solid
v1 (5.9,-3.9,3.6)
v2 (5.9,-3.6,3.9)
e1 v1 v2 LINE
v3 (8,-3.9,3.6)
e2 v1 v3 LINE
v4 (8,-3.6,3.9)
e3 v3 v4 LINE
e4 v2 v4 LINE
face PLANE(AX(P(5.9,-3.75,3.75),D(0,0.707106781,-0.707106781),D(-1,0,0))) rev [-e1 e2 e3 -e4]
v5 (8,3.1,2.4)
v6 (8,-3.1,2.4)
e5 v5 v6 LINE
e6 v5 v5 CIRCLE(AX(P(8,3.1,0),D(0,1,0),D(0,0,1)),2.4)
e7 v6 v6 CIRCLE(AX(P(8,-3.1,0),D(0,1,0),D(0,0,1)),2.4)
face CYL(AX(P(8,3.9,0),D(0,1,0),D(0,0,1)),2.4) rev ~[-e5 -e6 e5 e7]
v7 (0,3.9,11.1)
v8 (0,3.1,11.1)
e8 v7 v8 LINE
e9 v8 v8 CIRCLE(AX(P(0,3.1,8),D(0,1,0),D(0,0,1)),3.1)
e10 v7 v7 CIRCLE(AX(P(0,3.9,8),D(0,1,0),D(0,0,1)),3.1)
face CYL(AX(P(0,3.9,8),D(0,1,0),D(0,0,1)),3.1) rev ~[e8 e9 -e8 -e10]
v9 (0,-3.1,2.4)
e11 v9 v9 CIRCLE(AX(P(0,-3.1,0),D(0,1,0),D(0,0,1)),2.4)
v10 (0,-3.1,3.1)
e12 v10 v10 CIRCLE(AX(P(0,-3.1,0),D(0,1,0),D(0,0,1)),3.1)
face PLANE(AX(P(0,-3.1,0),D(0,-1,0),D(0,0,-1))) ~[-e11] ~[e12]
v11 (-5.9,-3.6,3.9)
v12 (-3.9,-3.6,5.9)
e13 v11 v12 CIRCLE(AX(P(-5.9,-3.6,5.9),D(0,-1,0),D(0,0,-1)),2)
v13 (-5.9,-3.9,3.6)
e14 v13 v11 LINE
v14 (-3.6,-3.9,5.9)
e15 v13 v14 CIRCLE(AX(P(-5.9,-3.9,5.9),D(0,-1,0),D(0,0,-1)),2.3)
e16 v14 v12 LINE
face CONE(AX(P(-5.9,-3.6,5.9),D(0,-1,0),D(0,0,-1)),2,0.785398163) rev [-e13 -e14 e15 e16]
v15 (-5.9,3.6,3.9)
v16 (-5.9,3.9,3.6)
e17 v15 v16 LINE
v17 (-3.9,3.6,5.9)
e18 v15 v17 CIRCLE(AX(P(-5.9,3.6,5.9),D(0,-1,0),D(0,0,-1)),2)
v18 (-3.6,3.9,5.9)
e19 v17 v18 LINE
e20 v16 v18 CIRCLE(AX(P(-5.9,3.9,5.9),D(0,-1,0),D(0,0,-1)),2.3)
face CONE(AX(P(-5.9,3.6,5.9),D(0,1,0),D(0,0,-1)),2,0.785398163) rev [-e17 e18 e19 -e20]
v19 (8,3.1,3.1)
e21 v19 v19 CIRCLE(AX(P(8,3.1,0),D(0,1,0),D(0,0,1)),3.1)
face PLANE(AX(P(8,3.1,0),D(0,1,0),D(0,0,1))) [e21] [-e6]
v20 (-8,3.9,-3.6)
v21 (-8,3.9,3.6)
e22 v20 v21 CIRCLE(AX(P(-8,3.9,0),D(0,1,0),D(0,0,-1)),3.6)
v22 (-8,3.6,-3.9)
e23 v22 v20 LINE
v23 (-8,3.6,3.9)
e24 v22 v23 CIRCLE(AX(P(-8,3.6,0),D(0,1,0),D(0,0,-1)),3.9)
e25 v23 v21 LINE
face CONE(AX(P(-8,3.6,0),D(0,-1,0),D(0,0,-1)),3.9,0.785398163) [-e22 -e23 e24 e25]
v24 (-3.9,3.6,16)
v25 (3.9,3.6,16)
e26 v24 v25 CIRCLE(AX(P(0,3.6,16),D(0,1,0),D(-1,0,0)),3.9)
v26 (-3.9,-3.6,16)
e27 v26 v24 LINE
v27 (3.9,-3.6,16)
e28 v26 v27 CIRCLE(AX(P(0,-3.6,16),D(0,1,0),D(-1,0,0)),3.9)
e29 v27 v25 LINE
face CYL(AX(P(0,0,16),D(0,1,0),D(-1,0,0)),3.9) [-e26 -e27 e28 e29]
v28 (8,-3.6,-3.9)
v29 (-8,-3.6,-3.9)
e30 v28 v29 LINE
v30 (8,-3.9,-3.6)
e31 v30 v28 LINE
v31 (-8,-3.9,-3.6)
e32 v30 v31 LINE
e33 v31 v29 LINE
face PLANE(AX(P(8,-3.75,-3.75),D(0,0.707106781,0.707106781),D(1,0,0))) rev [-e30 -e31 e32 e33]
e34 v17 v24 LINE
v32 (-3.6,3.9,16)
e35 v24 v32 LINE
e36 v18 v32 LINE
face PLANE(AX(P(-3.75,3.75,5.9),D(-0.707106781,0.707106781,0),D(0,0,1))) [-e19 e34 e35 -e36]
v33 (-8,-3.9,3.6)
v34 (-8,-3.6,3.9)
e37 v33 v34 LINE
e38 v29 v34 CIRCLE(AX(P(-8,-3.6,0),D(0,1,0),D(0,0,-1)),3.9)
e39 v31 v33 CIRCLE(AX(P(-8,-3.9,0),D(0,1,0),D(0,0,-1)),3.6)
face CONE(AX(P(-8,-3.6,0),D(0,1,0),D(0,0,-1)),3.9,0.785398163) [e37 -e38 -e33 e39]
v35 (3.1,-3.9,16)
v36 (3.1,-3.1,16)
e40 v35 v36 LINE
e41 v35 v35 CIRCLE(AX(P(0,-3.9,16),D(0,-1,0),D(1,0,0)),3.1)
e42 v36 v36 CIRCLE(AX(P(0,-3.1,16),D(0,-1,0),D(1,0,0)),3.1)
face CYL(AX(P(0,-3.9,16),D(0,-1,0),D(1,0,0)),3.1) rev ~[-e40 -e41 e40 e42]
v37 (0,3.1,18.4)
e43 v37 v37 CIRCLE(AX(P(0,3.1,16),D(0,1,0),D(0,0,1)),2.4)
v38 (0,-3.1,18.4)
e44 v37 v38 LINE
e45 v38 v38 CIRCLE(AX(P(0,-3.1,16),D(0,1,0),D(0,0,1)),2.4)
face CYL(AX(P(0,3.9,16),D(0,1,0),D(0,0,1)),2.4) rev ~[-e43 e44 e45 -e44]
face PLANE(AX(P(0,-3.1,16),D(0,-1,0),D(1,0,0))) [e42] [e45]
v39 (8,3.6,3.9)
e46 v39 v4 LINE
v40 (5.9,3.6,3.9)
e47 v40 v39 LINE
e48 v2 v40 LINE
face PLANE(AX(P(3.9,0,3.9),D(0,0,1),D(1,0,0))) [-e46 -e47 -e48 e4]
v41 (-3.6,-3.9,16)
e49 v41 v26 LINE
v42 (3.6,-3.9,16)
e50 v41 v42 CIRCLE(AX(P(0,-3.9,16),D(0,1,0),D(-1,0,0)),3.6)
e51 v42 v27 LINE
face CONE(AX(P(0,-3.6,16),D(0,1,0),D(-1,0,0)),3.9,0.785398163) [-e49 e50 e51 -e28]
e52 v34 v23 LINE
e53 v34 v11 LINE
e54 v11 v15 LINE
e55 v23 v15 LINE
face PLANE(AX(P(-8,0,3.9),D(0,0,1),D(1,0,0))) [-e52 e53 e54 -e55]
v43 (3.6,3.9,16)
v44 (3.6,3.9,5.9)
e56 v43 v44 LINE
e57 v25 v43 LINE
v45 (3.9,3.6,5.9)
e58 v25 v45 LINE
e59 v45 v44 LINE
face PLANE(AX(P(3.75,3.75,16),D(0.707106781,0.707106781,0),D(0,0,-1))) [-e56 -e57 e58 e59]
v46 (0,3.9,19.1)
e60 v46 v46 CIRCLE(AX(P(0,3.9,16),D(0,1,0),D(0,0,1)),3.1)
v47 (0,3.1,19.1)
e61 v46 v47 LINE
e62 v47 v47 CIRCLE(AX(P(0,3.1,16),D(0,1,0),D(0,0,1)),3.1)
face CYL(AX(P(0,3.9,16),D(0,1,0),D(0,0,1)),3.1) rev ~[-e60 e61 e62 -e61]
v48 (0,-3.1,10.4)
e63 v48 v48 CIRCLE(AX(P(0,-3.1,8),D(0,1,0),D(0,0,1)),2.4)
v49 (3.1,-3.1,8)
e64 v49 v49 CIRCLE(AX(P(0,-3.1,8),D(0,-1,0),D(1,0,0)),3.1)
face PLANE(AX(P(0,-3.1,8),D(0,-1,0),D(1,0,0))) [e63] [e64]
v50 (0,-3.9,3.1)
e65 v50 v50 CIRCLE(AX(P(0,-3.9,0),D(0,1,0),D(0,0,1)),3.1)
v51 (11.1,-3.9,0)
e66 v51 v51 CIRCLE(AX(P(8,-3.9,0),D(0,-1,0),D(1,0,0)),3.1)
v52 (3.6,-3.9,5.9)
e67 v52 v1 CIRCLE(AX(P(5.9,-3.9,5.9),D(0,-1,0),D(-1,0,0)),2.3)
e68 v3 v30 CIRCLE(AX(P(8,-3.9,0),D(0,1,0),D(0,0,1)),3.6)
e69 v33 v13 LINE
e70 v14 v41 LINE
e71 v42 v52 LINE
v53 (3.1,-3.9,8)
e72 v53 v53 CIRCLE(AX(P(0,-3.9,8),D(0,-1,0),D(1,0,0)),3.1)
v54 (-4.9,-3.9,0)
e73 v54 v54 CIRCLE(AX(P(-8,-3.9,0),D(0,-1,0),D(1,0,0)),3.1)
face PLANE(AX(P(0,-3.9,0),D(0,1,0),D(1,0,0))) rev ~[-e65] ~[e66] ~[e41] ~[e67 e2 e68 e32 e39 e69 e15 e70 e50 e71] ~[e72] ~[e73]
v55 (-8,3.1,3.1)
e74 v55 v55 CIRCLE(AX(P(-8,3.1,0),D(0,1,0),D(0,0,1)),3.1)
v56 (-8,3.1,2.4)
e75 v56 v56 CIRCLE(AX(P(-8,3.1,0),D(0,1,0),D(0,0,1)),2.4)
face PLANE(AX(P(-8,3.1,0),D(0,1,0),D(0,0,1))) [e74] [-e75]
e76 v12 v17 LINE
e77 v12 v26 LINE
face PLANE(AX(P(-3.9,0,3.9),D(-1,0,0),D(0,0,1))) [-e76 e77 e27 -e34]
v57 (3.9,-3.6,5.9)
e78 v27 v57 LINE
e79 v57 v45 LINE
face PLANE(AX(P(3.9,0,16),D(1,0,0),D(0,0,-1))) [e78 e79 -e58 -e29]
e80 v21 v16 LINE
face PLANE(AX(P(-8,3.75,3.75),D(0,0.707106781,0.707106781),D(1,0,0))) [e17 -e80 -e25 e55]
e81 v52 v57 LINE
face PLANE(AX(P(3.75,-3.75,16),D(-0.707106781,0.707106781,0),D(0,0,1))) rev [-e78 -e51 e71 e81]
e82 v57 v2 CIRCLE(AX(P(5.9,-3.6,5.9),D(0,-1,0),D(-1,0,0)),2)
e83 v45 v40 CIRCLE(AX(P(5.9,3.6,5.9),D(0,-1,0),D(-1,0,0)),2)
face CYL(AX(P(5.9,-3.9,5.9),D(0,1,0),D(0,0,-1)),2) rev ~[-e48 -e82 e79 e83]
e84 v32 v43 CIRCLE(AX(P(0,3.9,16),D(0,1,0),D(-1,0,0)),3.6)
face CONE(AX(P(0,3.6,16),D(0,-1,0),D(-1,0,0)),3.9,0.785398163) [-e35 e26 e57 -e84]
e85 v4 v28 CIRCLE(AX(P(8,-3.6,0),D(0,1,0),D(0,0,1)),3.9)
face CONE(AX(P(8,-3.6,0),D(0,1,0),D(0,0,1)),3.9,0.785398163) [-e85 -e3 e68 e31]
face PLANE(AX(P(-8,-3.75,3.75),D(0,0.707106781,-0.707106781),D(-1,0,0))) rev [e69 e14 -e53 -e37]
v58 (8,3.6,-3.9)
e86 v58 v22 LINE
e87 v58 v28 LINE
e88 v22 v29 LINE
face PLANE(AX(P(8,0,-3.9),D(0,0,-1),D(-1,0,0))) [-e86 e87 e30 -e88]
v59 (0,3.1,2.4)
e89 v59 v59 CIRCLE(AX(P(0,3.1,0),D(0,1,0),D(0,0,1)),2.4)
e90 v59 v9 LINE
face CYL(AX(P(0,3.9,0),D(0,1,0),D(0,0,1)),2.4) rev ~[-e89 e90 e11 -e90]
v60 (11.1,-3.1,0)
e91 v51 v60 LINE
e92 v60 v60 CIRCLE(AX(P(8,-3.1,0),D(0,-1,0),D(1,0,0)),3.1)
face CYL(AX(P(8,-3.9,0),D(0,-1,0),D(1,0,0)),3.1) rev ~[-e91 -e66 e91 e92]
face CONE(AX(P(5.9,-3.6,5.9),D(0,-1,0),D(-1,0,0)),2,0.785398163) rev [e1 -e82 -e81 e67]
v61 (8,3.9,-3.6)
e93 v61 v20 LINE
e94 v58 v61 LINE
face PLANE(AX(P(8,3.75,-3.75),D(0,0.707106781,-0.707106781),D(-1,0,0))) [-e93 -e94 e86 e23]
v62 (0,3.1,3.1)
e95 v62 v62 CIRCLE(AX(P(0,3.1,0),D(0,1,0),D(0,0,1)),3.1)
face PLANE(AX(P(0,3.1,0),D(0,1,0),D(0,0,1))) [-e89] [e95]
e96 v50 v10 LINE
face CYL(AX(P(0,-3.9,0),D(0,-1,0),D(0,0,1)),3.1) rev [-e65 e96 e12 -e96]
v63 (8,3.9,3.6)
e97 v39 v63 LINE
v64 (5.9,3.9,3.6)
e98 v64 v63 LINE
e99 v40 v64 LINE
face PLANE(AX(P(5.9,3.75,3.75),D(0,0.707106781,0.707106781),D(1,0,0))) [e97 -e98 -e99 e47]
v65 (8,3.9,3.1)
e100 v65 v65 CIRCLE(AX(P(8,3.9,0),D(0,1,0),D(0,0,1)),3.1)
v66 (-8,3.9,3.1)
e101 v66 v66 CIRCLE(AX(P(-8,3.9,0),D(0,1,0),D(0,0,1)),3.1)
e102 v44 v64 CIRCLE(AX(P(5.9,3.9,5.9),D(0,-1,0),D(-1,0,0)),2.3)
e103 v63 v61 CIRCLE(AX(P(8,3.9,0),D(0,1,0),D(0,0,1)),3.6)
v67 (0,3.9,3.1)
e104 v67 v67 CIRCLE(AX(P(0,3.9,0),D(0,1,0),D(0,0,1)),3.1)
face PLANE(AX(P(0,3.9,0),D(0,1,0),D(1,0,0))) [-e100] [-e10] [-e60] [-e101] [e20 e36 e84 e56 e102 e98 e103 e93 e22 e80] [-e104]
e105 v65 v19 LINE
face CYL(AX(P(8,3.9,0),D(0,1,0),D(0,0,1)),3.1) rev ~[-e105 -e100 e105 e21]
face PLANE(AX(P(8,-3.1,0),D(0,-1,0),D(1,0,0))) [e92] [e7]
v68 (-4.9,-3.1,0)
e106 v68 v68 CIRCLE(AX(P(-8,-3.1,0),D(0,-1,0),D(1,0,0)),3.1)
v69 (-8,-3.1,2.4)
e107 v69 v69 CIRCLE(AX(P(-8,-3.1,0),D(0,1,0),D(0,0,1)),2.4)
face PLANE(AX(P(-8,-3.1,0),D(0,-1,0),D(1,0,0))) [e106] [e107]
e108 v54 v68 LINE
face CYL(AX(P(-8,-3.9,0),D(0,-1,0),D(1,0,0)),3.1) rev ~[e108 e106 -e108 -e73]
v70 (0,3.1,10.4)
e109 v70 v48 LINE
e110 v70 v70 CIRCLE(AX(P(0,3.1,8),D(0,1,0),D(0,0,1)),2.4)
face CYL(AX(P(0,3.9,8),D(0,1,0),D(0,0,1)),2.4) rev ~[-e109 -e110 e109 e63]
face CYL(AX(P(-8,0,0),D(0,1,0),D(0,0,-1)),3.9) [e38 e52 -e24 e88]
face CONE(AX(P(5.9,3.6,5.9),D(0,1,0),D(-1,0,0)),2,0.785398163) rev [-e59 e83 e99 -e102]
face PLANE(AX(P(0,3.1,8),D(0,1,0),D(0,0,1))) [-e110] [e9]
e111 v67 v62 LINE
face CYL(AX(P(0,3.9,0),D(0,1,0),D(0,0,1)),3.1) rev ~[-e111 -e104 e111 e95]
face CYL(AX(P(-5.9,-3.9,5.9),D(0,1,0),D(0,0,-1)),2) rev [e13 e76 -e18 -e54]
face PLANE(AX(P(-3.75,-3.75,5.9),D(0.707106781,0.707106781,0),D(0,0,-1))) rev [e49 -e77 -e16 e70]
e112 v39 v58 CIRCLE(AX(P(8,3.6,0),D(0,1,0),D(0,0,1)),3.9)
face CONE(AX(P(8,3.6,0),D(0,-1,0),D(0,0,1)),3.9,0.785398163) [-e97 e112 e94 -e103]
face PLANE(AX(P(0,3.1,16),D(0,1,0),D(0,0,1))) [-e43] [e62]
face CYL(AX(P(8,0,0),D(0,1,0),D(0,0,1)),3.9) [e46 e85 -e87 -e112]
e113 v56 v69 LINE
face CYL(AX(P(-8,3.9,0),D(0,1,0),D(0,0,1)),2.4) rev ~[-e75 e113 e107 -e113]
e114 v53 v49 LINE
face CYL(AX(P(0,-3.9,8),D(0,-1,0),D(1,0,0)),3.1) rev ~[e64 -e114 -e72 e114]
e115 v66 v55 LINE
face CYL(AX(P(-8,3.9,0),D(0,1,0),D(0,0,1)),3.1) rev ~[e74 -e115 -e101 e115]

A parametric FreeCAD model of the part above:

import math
import FreeCAD as App
import Part
import Sketcher
from FreeCAD import Vector
Q = App.Units.Quantity


def edges_at(feature, points):
    """Names of the edges that pass closest to the given points."""
    edges = feature.Shape.Edges
    near = lambda p: min(range(len(edges)), key=lambda i: edges[i].distToShape(Part.Vertex(*p))[0])
    return sorted({f"Edge{near(p) + 1}" for p in points})

doc = App.newDocument("Part")
body = doc.addObject("PartDesign::Body", "Body")

# Sketch on XZ plane
sketch1 = doc.addObject("Sketcher::SketchObject", "Sketch")
body.addObject(sketch1)
sketch1.AttachmentSupport = (doc.XZ_Plane, [""])
sketch1.MapMode = "FlatFace"
sketch1.addGeometry([
    Part.ArcOfCircle(Part.Circle(Vector(-8, 0, 0), Vector(0, 0, 1), 3.9), math.radians(90), math.radians(270)),  # 0
    Part.LineSegment(Vector(-8, 3.9, 0), Vector(-3.9, 3.9, 0)),  # 1
    Part.LineSegment(Vector(-3.9, 3.9, 0), Vector(-3.9, 16, 0)),  # 2
    Part.ArcOfCircle(Part.Circle(Vector(0, 16, 0), Vector(0, 0, 1), 3.9), math.radians(0), math.radians(180)),  # 3
    Part.LineSegment(Vector(3.9, 16, 0), Vector(3.9, 3.9, 0)),  # 4
    Part.LineSegment(Vector(3.9, 3.9, 0), Vector(8, 3.9, 0)),  # 5
    Part.ArcOfCircle(Part.Circle(Vector(8, 0, 0), Vector(0, 0, 1), 3.9), math.radians(-90), math.radians(90)),  # 6
    Part.LineSegment(Vector(8, -3.9, 0), Vector(-8, -3.9, 0)),  # 7
], False)
sketch1.addConstraint([
    Sketcher.Constraint("Tangent", 0, 1, 1, 1),
    Sketcher.Constraint("Coincident", 1, 2, 2, 1),
    Sketcher.Constraint("Tangent", 2, 2, 3, 2),
    Sketcher.Constraint("Tangent", 3, 1, 4, 1),
    Sketcher.Constraint("Coincident", 4, 2, 5, 1),
    Sketcher.Constraint("Tangent", 5, 2, 6, 2),
    Sketcher.Constraint("Tangent", 6, 1, 7, 1),
    Sketcher.Constraint("Tangent", 7, 2, 0, 2),
    Sketcher.Constraint("Horizontal", 1),
    Sketcher.Constraint("Vertical", 2),
    Sketcher.Constraint("Vertical", 4),
    Sketcher.Constraint("Horizontal", 5),
    Sketcher.Constraint("Horizontal", 7),
    Sketcher.Constraint("Equal", 0, 3),
    Sketcher.Constraint("Equal", 3, 6),
    Sketcher.Constraint("Symmetric", 0, 3, 6, 3, -1, 1),
    Sketcher.Constraint("PointOnObject", 3, 3, -2),
    Sketcher.Constraint("Radius", 0, Q("3.9 mm")),
    Sketcher.Constraint("DistanceX", 7, 2, 7, 1, Q("16 mm")),
    Sketcher.Constraint("DistanceY", 2, 1, 2, 2, Q("12.1 mm")),
])
pad1 = doc.addObject("PartDesign::Pad", "Pad")
body.addObject(pad1)
pad1.Profile = sketch1
pad1.Length = 7.8
pad1.Midplane = True

# Sketch on XZ plane
sketch2 = doc.addObject("Sketcher::SketchObject", "Sketch001")
body.addObject(sketch2)
sketch2.AttachmentSupport = (doc.XZ_Plane, [""])
sketch2.MapMode = "FlatFace"
sketch2.AttachmentOffset = App.Placement(Vector(0, 0, -3.9), App.Rotation())
sketch2.addGeometry(Part.Circle(Vector(0, 0, 0), Vector(0, 0, 1), 2.4), False)
sketch2.addConstraint([
    Sketcher.Constraint("Coincident", 0, 3, -1, 1),
    Sketcher.Constraint("Diameter", 0, Q("4.8 mm")),
])
pocket1 = doc.addObject("PartDesign::Pocket", "Pocket")
body.addObject(pocket1)
pocket1.Profile = sketch2
pocket1.Type = "ThroughAll"
pocket1.Reversed = True

# Sketch on XZ plane
sketch3 = doc.addObject("Sketcher::SketchObject", "Sketch002")
body.addObject(sketch3)
sketch3.AttachmentSupport = (doc.XZ_Plane, [""])
sketch3.MapMode = "FlatFace"
sketch3.AttachmentOffset = App.Placement(Vector(0, 0, -3.9), App.Rotation())
sketch3.addGeometry(Part.Circle(Vector(0, 0, 0), Vector(0, 0, 1), 3.1), False)
sketch3.addConstraint([
    Sketcher.Constraint("Coincident", 0, 3, -1, 1),
    Sketcher.Constraint("Diameter", 0, Q("6.2 mm")),
])
pocket2 = doc.addObject("PartDesign::Pocket", "Pocket001")
body.addObject(pocket2)
pocket2.Profile = sketch3
pocket2.Length = 0.8
pocket2.Reversed = True
doc.recompute()

mirrored = doc.addObject("PartDesign::Mirrored", "Mirrored")
body.addObject(mirrored)
mirrored.Originals = [pocket2]
mirrored.MirrorPlane = (doc.XZ_Plane, [""])
body.Tip = mirrored
doc.recompute()

linearpattern = doc.addObject("PartDesign::LinearPattern", "LinearPattern")
body.addObject(linearpattern)
linearpattern.Originals = [pocket1, pocket2]
linearpattern.Direction = (doc.X_Axis, [""])
linearpattern.Mode = "offset"
linearpattern.Offset = 8
linearpattern.Occurrences = 2
linearpattern.Reversed = True
body.Tip = linearpattern

# Sketch on XZ plane
sketch4 = doc.addObject("Sketcher::SketchObject", "Sketch003")
body.addObject(sketch4)
sketch4.AttachmentSupport = (doc.XZ_Plane, [""])
sketch4.MapMode = "FlatFace"
sketch4.AttachmentOffset = App.Placement(Vector(0, 0, 3.9), App.Rotation())
sketch4.addGeometry(Part.Circle(Vector(-8, 0, 0), Vector(0, 0, 1), 3.1), False)
sketch4.addConstraint([
    Sketcher.Constraint("PointOnObject", 0, 3, -1),
    Sketcher.Constraint("Diameter", 0, Q("6.2 mm")),
    Sketcher.Constraint("DistanceX", 0, 3, -1, 1, Q("8 mm")),
])
pocket3 = doc.addObject("PartDesign::Pocket", "Pocket002")
body.addObject(pocket3)
pocket3.Profile = sketch4
pocket3.Length = 0.8
doc.recompute()

linearpattern2 = doc.addObject("PartDesign::LinearPattern", "LinearPattern001")
body.addObject(linearpattern2)
linearpattern2.Originals = [pocket1, pocket2]
linearpattern2.Direction = (doc.X_Axis, [""])
linearpattern2.Mode = "offset"
linearpattern2.Offset = 8
linearpattern2.Occurrences = 2
body.Tip = linearpattern2

# Sketch on XZ plane
sketch5 = doc.addObject("Sketcher::SketchObject", "Sketch004")
body.addObject(sketch5)
sketch5.AttachmentSupport = (doc.XZ_Plane, [""])
sketch5.MapMode = "FlatFace"
sketch5.AttachmentOffset = App.Placement(Vector(0, 0, 3.9), App.Rotation())
sketch5.addGeometry(Part.Circle(Vector(8, 0, 0), Vector(0, 0, 1), 3.1), False)
sketch5.addConstraint([
    Sketcher.Constraint("PointOnObject", 0, 3, -1),
    Sketcher.Constraint("Diameter", 0, Q("6.2 mm")),
    Sketcher.Constraint("DistanceX", -1, 1, 0, 3, Q("8 mm")),
])
pocket4 = doc.addObject("PartDesign::Pocket", "Pocket003")
body.addObject(pocket4)
pocket4.Profile = sketch5
pocket4.Length = 0.8
doc.recompute()

linearpattern3 = doc.addObject("PartDesign::LinearPattern", "LinearPattern002")
body.addObject(linearpattern3)
linearpattern3.Originals = [pocket1, pocket2]
linearpattern3.Direction = (doc.Z_Axis, [""])
linearpattern3.Mode = "offset"
linearpattern3.Offset = 8
linearpattern3.Occurrences = 3
body.Tip = linearpattern3

# Sketch on XZ plane
sketch6 = doc.addObject("Sketcher::SketchObject", "Sketch005")
body.addObject(sketch6)
sketch6.AttachmentSupport = (doc.XZ_Plane, [""])
sketch6.MapMode = "FlatFace"
sketch6.AttachmentOffset = App.Placement(Vector(0, 0, 3.9), App.Rotation())
sketch6.addGeometry(Part.Circle(Vector(0, 8, 0), Vector(0, 0, 1), 3.1), False)
sketch6.addConstraint([
    Sketcher.Constraint("PointOnObject", 0, 3, -2),
    Sketcher.Constraint("Diameter", 0, Q("6.2 mm")),
    Sketcher.Constraint("DistanceY", -1, 1, 0, 3, Q("8 mm")),
])
pocket5 = doc.addObject("PartDesign::Pocket", "Pocket004")
body.addObject(pocket5)
pocket5.Profile = sketch6
pocket5.Length = 0.8

# Sketch on XZ plane
sketch7 = doc.addObject("Sketcher::SketchObject", "Sketch006")
body.addObject(sketch7)
sketch7.AttachmentSupport = (doc.XZ_Plane, [""])
sketch7.MapMode = "FlatFace"
sketch7.AttachmentOffset = App.Placement(Vector(0, 0, 3.9), App.Rotation())
sketch7.addGeometry(Part.Circle(Vector(0, 16, 0), Vector(0, 0, 1), 3.1), False)
sketch7.addConstraint([
    Sketcher.Constraint("PointOnObject", 0, 3, -2),
    Sketcher.Constraint("Diameter", 0, Q("6.2 mm")),
    Sketcher.Constraint("DistanceY", -1, 1, 0, 3, Q("16 mm")),
])
pocket6 = doc.addObject("PartDesign::Pocket", "Pocket005")
body.addObject(pocket6)
pocket6.Profile = sketch7
pocket6.Length = 0.8
doc.recompute()

fillet = doc.addObject("PartDesign::Fillet", "Fillet")
body.addObject(fillet)
fillet.Base = (pocket6, edges_at(pocket6, [(3.9, 0, 3.9), (-3.9, 0, 3.9)]))
fillet.Radius = 2
doc.recompute()

chamfer = doc.addObject("PartDesign::Chamfer", "Chamfer")
body.addObject(chamfer)
chamfer.Base = (fillet, edges_at(fillet, [
    (0, 3.9, 19.9),
    (-3.9, -3.9, 10.95),
    (-3.9, 3.9, 10.95),
    (3.9, -3.9, 10.95),
    (3.9, 3.9, 10.95),
    (6.95, -3.9, 3.9),
    (6.95, 3.9, 3.9),
    (-4.486, 3.9, 4.486),
    (-4.486, -3.9, 4.486),
    (4.486, 3.9, 4.486),
    (4.486, -3.9, 4.486),
    (-6.95, 3.9, 3.9),
    (11.9, 3.9, 0),
    (0, 3.9, -3.9),
    (-11.9, 3.9, 0),
    (-6.95, -3.9, 3.9),
    (11.9, -3.9, 0),
    (0, -3.9, -3.9),
    (-11.9, -3.9, 0),
    (0, -3.9, 19.9),
]))
chamfer.Size = 0.3

doc.recompute()
